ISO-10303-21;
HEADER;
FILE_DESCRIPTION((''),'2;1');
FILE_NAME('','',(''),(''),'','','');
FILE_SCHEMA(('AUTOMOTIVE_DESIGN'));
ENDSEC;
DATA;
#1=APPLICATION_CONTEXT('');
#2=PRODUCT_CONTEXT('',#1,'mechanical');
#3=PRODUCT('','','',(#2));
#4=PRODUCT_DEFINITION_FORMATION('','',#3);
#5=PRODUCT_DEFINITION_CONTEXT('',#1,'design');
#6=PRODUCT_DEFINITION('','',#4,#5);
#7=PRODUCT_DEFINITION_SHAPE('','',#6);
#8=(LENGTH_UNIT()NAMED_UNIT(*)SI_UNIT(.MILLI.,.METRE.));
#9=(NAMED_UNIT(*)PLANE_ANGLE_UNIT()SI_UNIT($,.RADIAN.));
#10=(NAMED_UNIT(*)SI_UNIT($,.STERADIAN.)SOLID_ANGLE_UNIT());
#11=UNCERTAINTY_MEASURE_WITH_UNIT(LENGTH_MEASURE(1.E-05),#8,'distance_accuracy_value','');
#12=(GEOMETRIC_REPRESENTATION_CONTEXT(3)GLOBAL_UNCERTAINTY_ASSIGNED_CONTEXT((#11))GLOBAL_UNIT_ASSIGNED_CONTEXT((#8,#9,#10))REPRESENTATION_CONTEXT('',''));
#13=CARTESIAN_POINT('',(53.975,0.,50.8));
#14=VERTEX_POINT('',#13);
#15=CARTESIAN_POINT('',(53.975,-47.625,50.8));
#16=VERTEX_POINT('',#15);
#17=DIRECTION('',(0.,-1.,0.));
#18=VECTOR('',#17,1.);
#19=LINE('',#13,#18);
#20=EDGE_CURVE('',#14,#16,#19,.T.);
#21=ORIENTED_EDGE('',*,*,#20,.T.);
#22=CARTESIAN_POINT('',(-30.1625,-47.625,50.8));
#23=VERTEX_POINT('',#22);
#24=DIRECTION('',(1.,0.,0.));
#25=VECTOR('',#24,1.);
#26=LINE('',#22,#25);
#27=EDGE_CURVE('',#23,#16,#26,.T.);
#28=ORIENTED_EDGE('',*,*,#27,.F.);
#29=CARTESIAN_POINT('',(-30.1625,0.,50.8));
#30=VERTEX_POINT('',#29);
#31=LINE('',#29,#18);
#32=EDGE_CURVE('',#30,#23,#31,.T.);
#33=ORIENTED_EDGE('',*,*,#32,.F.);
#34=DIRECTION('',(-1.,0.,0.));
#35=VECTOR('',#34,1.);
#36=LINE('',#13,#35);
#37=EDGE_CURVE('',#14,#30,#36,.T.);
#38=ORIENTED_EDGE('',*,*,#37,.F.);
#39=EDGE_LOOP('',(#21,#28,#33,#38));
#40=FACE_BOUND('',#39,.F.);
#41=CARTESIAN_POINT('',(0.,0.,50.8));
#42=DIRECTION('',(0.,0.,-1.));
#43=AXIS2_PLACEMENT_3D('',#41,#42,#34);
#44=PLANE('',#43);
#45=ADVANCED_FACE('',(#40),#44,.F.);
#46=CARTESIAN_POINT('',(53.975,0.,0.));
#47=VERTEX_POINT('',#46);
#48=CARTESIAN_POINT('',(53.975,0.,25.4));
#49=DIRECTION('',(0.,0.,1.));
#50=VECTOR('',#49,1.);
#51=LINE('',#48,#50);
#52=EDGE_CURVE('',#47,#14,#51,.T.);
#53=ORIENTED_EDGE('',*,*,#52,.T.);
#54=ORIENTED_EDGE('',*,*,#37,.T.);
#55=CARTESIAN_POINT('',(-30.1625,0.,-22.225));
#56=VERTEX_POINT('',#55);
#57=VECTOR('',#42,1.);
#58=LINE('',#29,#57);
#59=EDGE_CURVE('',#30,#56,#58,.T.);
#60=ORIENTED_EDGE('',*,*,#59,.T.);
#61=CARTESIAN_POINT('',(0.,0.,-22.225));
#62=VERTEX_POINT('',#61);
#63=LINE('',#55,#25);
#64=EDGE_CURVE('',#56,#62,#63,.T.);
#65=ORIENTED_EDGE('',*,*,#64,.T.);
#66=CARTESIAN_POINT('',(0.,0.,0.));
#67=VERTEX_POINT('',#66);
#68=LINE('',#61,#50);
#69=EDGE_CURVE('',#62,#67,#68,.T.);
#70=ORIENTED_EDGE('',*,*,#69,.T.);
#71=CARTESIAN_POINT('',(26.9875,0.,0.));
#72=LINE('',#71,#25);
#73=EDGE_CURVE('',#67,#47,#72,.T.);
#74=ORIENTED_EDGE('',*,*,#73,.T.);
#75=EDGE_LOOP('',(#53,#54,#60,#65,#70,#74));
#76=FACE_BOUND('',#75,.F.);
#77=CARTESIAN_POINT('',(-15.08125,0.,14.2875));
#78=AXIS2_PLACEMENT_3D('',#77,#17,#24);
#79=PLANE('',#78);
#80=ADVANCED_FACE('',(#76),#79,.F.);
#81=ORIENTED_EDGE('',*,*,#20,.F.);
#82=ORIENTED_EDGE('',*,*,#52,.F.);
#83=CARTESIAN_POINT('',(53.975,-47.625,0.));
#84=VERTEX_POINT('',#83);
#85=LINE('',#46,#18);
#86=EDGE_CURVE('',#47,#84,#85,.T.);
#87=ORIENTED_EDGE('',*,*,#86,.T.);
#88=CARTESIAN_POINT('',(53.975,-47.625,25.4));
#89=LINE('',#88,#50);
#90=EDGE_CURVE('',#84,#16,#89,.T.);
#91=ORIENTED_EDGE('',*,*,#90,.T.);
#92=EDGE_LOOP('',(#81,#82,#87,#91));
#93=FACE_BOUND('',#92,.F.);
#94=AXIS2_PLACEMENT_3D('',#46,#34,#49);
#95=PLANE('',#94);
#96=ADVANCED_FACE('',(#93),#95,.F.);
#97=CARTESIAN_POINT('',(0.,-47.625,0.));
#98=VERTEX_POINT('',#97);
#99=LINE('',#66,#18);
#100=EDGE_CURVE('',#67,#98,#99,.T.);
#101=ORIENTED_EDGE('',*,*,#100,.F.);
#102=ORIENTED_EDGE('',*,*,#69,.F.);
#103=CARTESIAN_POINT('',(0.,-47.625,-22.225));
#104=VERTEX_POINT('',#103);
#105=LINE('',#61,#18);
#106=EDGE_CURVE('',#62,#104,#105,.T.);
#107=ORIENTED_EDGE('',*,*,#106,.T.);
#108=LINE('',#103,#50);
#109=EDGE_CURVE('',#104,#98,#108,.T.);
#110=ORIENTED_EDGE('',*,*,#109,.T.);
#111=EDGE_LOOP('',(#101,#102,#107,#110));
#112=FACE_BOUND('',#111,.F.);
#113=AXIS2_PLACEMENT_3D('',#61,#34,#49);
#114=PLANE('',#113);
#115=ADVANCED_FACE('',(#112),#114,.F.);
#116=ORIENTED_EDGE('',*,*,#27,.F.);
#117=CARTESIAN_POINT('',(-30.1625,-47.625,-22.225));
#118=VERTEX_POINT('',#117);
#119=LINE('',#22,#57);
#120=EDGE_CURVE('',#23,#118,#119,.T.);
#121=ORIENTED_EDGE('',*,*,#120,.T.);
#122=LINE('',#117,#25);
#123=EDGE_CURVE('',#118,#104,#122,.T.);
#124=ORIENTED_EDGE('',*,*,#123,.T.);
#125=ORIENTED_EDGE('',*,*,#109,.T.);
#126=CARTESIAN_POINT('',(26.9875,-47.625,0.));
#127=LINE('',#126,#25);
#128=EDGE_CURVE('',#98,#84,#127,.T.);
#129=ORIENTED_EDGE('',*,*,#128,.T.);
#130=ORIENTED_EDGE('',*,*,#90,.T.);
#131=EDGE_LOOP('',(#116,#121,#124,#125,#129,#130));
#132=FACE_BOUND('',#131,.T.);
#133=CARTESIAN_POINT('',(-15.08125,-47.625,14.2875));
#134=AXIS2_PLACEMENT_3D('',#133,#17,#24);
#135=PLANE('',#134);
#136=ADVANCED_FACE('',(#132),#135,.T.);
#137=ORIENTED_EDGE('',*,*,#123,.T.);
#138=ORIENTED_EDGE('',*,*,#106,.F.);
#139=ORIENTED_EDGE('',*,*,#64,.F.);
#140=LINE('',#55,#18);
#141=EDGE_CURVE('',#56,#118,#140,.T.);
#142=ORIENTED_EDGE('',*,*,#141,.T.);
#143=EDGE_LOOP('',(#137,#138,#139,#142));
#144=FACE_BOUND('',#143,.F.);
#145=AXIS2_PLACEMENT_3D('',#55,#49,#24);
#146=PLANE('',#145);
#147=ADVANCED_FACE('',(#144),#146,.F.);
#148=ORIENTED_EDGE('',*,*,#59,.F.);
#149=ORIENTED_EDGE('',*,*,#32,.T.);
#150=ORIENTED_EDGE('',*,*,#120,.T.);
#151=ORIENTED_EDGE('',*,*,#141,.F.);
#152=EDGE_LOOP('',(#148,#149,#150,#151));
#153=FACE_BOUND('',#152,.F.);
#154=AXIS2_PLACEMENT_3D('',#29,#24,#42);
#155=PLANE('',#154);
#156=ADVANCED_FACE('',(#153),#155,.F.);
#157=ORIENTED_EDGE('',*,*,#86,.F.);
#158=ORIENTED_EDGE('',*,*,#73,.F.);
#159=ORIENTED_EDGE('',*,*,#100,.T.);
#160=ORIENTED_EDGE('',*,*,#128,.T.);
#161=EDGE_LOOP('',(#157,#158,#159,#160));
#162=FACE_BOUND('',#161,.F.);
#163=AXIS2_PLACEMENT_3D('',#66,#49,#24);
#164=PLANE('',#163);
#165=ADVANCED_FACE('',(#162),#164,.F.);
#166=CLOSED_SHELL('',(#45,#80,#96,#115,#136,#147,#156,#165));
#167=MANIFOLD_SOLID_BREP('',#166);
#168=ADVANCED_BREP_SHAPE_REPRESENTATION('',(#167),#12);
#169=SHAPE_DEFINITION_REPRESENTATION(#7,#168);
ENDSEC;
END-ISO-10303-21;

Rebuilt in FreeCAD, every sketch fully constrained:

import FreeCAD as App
import Part
import Sketcher

V = App.Vector
Q = App.Units.Quantity

doc = App.newDocument("Part")
body = doc.addObject("PartDesign::Body", "Body")

sketch1 = body.newObject("Sketcher::SketchObject", "Sketch")
sketch1.AttachmentSupport = (doc.getObject("XZ_Plane"), [""])
sketch1.MapMode = "FlatFace"
sketch1.addGeometry(Part.LineSegment(V(0, 50.8, 0), V(0, 0, 0)), False)
sketch1.addGeometry(Part.LineSegment(V(0, 0, 0), V(53.975, 0, 0)), False)
sketch1.addGeometry(Part.LineSegment(V(53.975, 0, 0), V(53.975, 50.8, 0)), False)
sketch1.addGeometry(Part.LineSegment(V(53.975, 50.8, 0), V(0, 50.8, 0)), False)
sketch1.addConstraint(Sketcher.Constraint("Coincident", 0, 2, 1, 1))
sketch1.addConstraint(Sketcher.Constraint("Coincident", 1, 2, 2, 1))
sketch1.addConstraint(Sketcher.Constraint("Coincident", 2, 2, 3, 1))
sketch1.addConstraint(Sketcher.Constraint("Coincident", 3, 2, 0, 1))
sketch1.addConstraint(Sketcher.Constraint("Vertical", 0))
sketch1.addConstraint(Sketcher.Constraint("Horizontal", 1))
sketch1.addConstraint(Sketcher.Constraint("Vertical", 2))
sketch1.addConstraint(Sketcher.Constraint("Horizontal", 3))
sketch1.addConstraint(Sketcher.Constraint("Coincident", 0, 2, -1, 1))
sketch1.addConstraint(Sketcher.Constraint("DistanceY", 0, 2, 0, 1, Q("2 in")))
sketch1.addConstraint(Sketcher.Constraint("DistanceX", 1, 1, 1, 2, Q("2.125 in")))
pad1 = body.newObject("PartDesign::Pad", "Pad")
pad1.Profile = sketch1
pad1.Length = Q("1.875 in")

sketch2 = body.newObject("Sketcher::SketchObject", "Sketch001")
sketch2.AttachmentSupport = (doc.getObject("XZ_Plane"), [""])
sketch2.MapMode = "FlatFace"
sketch2.addGeometry(Part.LineSegment(V(0, 50.8, 0), V(-30.1625, 50.8, 0)), False)
sketch2.addGeometry(Part.LineSegment(V(-30.1625, 50.8, 0), V(-30.1625, -22.225, 0)), False)
sketch2.addGeometry(Part.LineSegment(V(-30.1625, -22.225, 0), V(0, -22.225, 0)), False)
sketch2.addGeometry(Part.LineSegment(V(0, -22.225, 0), V(0, 50.8, 0)), False)
sketch2.addConstraint(Sketcher.Constraint("Coincident", 0, 2, 1, 1))
sketch2.addConstraint(Sketcher.Constraint("Coincident", 1, 2, 2, 1))
sketch2.addConstraint(Sketcher.Constraint("Coincident", 2, 2, 3, 1))
sketch2.addConstraint(Sketcher.Constraint("Coincident", 3, 2, 0, 1))
sketch2.addConstraint(Sketcher.Constraint("Horizontal", 0))
sketch2.addConstraint(Sketcher.Constraint("Vertical", 1))
sketch2.addConstraint(Sketcher.Constraint("Horizontal", 2))
sketch2.addConstraint(Sketcher.Constraint("Vertical", 3))
sketch2.addConstraint(Sketcher.Constraint("PointOnObject", 2, 2, -2))
sketch2.addConstraint(Sketcher.Constraint("DistanceY", -1, 1, 0, 2, Q("2 in")))
sketch2.addConstraint(Sketcher.Constraint("DistanceX", 0, 2, 0, 1, Q("1.1875 in")))
sketch2.addConstraint(Sketcher.Constraint("DistanceY", 1, 2, 1, 1, Q("2.875 in")))
pad2 = body.newObject("PartDesign::Pad", "Pad001")
pad2.Profile = sketch2
pad2.Length = Q("1.875 in")

doc.recompute()
